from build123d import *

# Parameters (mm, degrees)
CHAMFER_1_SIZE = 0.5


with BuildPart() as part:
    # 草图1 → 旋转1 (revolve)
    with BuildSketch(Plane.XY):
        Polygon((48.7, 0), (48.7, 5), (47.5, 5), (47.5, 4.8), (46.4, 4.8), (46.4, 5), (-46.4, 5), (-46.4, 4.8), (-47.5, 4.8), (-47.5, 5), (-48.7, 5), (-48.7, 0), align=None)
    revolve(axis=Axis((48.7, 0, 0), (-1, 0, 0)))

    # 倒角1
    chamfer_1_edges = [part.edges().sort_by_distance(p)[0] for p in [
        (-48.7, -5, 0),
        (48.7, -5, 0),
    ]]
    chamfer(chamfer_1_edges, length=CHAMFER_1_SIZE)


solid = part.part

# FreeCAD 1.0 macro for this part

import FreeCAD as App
import Part
import Sketcher
from FreeCAD import Vector


def edges_at(feature, points):
    """Names of the edges that pass closest to the given points."""
    edges = feature.Shape.Edges
    near = lambda p: min(range(len(edges)), key=lambda i: edges[i].distToShape(Part.Vertex(*p))[0])
    return sorted({f"Edge{near(p) + 1}" for p in points})

doc = App.newDocument("Part")
body = doc.addObject("PartDesign::Body", "Body")

sketch1 = doc.addObject("Sketcher::SketchObject", "Sketch")
body.addObject(sketch1)
sketch1.AttachmentSupport = (doc.XY_Plane, [""])
sketch1.MapMode = "FlatFace"
sketch1.addGeometry([
    Part.LineSegment(Vector(48.7, 0, 0), Vector(48.7, 5, 0)),
    Part.LineSegment(Vector(48.7, 5, 0), Vector(47.5, 5, 0)),
    Part.LineSegment(Vector(47.5, 5, 0), Vector(47.5, 4.8, 0)),
    Part.LineSegment(Vector(47.5, 4.8, 0), Vector(46.4, 4.8, 0)),
    Part.LineSegment(Vector(46.4, 4.8, 0), Vector(46.4, 5, 0)),
    Part.LineSegment(Vector(46.4, 5, 0), Vector(-46.4, 5, 0)),
    Part.LineSegment(Vector(-46.4, 5, 0), Vector(-46.4, 4.8, 0)),
    Part.LineSegment(Vector(-46.4, 4.8, 0), Vector(-47.5, 4.8, 0)),
    Part.LineSegment(Vector(-47.5, 4.8, 0), Vector(-47.5, 5, 0)),
    Part.LineSegment(Vector(-47.5, 5, 0), Vector(-48.7, 5, 0)),
    Part.LineSegment(Vector(-48.7, 5, 0), Vector(-48.7, 0, 0)),
    Part.LineSegment(Vector(-48.7, 0, 0), Vector(48.7, 0, 0)),
], False)
sketch1.addConstraint([
    Sketcher.Constraint("Coincident", 0, 2, 1, 1),
    Sketcher.Constraint("Coincident", 1, 2, 2, 1),
    Sketcher.Constraint("Coincident", 2, 2, 3, 1),
    Sketcher.Constraint("Coincident", 3, 2, 4, 1),
    Sketcher.Constraint("Coincident", 4, 2, 5, 1),
    Sketcher.Constraint("Coincident", 5, 2, 6, 1),
    Sketcher.Constraint("Coincident", 6, 2, 7, 1),
    Sketcher.Constraint("Coincident", 7, 2, 8, 1),
    Sketcher.Constraint("Coincident", 8, 2, 9, 1),
    Sketcher.Constraint("Coincident", 9, 2, 10, 1),
    Sketcher.Constraint("Coincident", 10, 2, 11, 1),
    Sketcher.Constraint("Coincident", 11, 2, 0, 1),
    Sketcher.Constraint("Vertical", 0),
    Sketcher.Constraint("Horizontal", 1),
    Sketcher.Constraint("Vertical", 2),
    Sketcher.Constraint("Horizontal", 3),
    Sketcher.Constraint("Vertical", 4),
    Sketcher.Constraint("Horizontal", 5),
    Sketcher.Constraint("Vertical", 6),
    Sketcher.Constraint("Horizontal", 7),
    Sketcher.Constraint("Vertical", 8),
    Sketcher.Constraint("Horizontal", 9),
    Sketcher.Constraint("Vertical", 10),
    Sketcher.Constraint("Horizontal", 11),
    Sketcher.Constraint("Symmetric", 10, 2, 11, 2, -1, 1),
    Sketcher.Constraint("Symmetric", 3, 2, 6, 2, -2),
    Sketcher.Constraint("Symmetric", 1, 2, 8, 2, -2),
    Sketcher.Constraint("Horizontal", 1, 2, 4, 2),
    Sketcher.Constraint("DistanceY", 0, 1, 0, 2, 5.0),
    Sketcher.Constraint("DistanceX", 1, 2, 1, 1, 1.2),
    Sketcher.Constraint("DistanceX", 3, 2, 3, 1, 1.1),
    Sketcher.Constraint("DistanceX", 5, 2, 5, 1, 92.8),
    Sketcher.Constraint("DistanceY", 2, 2, 2, 1, 0.2),
])
revolution = doc.addObject("PartDesign::Revolution", "Revolution")
body.addObject(revolution)
revolution.Profile = sketch1
revolution.ReferenceAxis = (sketch1, ["H_Axis"])
revolution.Angle = 360
doc.recompute()

chamfer = doc.addObject("PartDesign::Chamfer", "Chamfer")
body.addObject(chamfer)
chamfer.Base = (revolution, edges_at(revolution, [(-48.7, -5, 0), (48.7, -5, 0)]))
chamfer.Size = 0.5

doc.recompute()
